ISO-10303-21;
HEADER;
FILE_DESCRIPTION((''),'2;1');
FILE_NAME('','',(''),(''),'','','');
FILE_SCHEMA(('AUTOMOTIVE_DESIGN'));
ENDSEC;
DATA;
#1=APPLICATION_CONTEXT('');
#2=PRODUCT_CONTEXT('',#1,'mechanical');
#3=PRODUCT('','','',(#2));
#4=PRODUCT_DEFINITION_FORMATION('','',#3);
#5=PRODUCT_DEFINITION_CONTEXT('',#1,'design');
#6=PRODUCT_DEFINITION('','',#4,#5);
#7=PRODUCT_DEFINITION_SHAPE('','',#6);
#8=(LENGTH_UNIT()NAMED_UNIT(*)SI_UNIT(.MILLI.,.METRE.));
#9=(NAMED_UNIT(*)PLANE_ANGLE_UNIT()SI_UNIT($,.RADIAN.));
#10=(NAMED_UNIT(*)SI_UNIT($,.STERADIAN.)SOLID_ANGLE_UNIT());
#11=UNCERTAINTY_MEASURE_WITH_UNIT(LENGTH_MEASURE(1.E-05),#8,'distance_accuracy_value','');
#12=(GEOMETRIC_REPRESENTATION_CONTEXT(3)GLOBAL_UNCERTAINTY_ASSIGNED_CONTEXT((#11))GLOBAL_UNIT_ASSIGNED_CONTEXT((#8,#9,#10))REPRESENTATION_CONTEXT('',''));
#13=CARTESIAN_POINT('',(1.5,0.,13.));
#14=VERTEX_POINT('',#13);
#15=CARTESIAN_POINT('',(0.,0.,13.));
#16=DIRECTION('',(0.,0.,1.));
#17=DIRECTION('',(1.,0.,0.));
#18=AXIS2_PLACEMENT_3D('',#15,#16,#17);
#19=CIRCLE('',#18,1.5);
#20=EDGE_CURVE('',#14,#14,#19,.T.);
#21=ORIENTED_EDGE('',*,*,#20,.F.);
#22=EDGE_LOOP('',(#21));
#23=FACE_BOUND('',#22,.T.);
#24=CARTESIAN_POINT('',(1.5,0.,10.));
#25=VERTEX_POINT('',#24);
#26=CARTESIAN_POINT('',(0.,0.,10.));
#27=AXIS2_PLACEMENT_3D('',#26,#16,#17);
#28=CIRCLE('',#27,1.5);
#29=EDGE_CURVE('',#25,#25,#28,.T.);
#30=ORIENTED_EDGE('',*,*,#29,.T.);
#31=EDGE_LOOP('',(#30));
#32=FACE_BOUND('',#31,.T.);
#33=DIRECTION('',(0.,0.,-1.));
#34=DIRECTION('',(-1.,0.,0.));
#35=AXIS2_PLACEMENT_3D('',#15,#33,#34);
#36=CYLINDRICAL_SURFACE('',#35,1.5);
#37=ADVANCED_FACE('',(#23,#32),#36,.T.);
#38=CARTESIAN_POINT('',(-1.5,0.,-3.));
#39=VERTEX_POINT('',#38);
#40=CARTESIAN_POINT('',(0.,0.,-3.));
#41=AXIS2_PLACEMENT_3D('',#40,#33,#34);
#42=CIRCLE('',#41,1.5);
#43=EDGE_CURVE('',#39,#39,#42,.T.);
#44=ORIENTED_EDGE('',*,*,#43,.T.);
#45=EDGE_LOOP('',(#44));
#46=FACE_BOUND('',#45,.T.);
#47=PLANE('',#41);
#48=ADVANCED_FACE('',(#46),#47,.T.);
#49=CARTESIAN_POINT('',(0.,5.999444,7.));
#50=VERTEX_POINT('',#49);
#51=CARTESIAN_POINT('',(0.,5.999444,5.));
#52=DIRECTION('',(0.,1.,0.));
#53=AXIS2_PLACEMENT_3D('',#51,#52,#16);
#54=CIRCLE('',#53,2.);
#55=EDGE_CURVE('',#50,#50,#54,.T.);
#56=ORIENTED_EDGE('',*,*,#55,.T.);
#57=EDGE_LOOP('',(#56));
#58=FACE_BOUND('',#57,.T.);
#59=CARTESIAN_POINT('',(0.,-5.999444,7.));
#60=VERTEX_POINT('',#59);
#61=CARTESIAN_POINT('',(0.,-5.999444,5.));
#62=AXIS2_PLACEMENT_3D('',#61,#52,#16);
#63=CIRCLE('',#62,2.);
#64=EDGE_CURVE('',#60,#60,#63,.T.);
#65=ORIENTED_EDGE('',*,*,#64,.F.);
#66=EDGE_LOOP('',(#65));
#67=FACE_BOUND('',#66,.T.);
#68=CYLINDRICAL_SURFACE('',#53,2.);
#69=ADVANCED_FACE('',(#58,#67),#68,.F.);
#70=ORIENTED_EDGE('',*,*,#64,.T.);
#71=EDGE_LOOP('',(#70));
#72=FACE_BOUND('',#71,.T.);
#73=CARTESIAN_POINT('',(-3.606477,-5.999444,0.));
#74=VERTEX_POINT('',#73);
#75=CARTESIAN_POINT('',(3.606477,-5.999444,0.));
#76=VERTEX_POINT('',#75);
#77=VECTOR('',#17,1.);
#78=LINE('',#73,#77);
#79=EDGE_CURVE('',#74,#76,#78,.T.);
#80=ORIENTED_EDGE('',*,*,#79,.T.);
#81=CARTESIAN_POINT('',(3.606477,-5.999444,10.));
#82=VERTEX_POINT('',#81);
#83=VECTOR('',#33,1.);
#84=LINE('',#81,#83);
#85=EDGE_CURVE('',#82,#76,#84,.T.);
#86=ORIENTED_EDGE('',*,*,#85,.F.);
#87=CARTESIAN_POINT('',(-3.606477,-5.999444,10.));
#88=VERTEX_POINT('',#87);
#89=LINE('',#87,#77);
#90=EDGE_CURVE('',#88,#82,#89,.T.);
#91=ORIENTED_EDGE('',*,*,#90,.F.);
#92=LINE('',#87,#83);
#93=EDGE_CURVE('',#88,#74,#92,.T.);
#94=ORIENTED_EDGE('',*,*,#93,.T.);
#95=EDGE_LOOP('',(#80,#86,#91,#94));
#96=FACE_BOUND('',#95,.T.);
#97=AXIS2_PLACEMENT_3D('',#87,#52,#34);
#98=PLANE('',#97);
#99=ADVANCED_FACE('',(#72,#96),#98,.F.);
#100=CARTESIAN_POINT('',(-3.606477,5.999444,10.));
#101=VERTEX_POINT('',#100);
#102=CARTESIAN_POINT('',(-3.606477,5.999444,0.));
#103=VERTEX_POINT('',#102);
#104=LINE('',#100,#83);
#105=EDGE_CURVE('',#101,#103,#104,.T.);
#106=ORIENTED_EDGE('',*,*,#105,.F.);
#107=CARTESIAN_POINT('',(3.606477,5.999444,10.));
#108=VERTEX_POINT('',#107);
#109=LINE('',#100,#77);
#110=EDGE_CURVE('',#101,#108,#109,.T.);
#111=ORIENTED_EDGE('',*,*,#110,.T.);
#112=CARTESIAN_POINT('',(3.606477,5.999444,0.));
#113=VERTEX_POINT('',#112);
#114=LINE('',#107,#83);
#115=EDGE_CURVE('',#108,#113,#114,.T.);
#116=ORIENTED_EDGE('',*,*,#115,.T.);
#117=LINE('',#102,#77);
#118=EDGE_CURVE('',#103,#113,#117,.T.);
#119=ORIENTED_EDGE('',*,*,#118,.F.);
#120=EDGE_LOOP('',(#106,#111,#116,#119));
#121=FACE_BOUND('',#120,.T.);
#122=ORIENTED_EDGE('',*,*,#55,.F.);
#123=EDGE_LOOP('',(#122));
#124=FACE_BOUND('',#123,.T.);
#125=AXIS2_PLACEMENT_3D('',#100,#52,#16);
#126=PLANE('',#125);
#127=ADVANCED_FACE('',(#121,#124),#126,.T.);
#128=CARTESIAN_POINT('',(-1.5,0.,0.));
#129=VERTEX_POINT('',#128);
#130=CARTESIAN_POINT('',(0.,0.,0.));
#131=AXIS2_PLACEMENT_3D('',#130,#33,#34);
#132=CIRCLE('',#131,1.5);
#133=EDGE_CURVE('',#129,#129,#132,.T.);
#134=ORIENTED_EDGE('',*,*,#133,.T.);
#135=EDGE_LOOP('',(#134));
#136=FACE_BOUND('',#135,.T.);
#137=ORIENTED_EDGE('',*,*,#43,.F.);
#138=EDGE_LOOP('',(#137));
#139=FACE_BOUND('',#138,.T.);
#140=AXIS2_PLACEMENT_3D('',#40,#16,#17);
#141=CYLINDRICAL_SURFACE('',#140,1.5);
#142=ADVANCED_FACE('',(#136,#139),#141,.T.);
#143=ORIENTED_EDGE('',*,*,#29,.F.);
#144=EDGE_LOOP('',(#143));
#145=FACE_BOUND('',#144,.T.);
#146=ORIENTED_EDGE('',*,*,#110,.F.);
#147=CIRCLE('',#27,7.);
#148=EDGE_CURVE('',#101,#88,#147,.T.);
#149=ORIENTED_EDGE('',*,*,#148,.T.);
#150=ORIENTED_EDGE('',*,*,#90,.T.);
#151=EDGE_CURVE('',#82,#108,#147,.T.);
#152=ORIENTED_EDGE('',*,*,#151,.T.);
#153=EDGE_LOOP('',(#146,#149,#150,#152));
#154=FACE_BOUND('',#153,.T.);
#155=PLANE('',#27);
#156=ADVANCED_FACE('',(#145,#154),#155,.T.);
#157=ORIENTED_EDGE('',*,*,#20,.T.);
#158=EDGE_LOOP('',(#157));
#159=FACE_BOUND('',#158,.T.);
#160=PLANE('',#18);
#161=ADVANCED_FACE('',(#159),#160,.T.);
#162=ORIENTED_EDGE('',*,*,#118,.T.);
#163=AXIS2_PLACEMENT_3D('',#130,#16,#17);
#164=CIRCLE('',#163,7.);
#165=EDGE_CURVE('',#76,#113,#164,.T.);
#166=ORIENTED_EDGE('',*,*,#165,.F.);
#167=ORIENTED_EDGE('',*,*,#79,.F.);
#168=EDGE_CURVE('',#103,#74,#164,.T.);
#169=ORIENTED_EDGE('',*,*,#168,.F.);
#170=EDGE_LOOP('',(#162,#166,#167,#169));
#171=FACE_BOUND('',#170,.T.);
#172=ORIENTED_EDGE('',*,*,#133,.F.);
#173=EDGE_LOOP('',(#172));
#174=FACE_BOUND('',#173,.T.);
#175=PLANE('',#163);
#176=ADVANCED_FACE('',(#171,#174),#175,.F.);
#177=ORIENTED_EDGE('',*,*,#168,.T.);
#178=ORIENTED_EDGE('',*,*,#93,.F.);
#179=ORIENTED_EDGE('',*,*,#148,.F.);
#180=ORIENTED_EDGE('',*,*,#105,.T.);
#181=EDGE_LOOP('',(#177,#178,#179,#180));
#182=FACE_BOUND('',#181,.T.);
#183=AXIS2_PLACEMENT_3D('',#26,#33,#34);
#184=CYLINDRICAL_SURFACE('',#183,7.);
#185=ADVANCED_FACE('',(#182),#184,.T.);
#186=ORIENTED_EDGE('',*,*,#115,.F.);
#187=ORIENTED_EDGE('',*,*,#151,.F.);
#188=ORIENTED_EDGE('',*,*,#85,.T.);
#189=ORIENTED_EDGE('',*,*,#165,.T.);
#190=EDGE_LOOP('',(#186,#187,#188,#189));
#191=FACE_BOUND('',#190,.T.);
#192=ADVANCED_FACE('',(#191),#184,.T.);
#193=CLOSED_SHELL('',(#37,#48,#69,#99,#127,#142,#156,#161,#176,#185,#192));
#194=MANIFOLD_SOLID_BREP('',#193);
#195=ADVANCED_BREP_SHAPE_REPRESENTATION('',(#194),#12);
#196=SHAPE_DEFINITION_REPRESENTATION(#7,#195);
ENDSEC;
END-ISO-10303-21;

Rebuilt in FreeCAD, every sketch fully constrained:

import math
import FreeCAD as App
import Part
import Sketcher
Q = App.Units.Quantity

doc = App.newDocument("Part")
params = doc.addObject("Spreadsheet::Sheet", "Params")
for row, (alias, value) in enumerate([
    ("sketch1_radius", "7 mm"),
    ("pad1_length", "10 mm"),
    ("sketch2_diameter", "3 mm"),
    ("pad2_length", "3 mm"),
    ("sketch3_diameter", "3 mm"),
    ("pad3_length", "3 mm"),
    ("sketch4_diameter", "4 mm"),
    ("hole_diameter", "4 mm"),
    ("hole_depth", "11.998887 mm"),
], start=1):
    params.set(f"A{row}", alias)
    params.set(f"B{row}", "=" + value)
    params.setAlias(f"B{row}", alias)

body = doc.addObject("PartDesign::Body", "Body")

# Sketch on XY plane
sketch1 = body.newObject("Sketcher::SketchObject", "Sketch")
sketch1.AttachmentSupport = (doc.getObject("XY_Plane"), [""])
sketch1.MapMode = "FlatFace"
sketch1.addGeometry(Part.LineSegment(App.Vector(4, 6, 0), App.Vector(-4, 6, 0)), False)
sketch1.addGeometry(Part.ArcOfCircle(Part.Circle(App.Vector(0, 0, 0), App.Vector(0, 0, 1), 7), math.radians(121), math.radians(239)), False)
sketch1.addGeometry(Part.LineSegment(App.Vector(-4, -6, 0), App.Vector(4, -6, 0)), False)
sketch1.addGeometry(Part.ArcOfCircle(Part.Circle(App.Vector(0, 0, 0), App.Vector(0, 0, 1), 7), math.radians(-59), math.radians(59)), False)
sketch1.addConstraint(Sketcher.Constraint("Coincident", 0, 2, 1, 1))
sketch1.addConstraint(Sketcher.Constraint("Coincident", 1, 2, 2, 1))
sketch1.addConstraint(Sketcher.Constraint("Coincident", 2, 2, 3, 1))
sketch1.addConstraint(Sketcher.Constraint("Coincident", 3, 2, 0, 1))
sketch1.addConstraint(Sketcher.Constraint("Horizontal", 0))
sketch1.addConstraint(Sketcher.Constraint("Horizontal", 2))
sketch1.addConstraint(Sketcher.Constraint("Coincident", 1, 3, -1, 1))
sketch1.addConstraint(Sketcher.Constraint("Coincident", 3, 3, -1, 1))
sketch1.addConstraint(Sketcher.Constraint("Equal", 1, 3))
sketch1.addConstraint(Sketcher.Constraint("Vertical", 0, 2, 1, 2))
sketch1.addConstraint(Sketcher.Constraint("Radius", 1, Q("7 mm")))
sketch1.addConstraint(Sketcher.Constraint("DistanceX", 0, 2, 0, 1, Q("7.212954 mm")))
sketch1.setExpression("Constraints[10]", "Params.sketch1_radius")
pad1 = body.newObject("PartDesign::Pad", "Pad")
pad1.Profile = sketch1
pad1.setExpression("Length", "Params.pad1_length")

# Sketch on XY plane
sketch2 = body.newObject("Sketcher::SketchObject", "Sketch001")
sketch2.AttachmentSupport = (doc.getObject("XY_Plane"), [""])
sketch2.MapMode = "FlatFace"
sketch2.AttachmentOffset = App.Placement(App.Vector(0, 0, 10), App.Rotation())
sketch2.addGeometry(Part.Circle(App.Vector(0, 0, 0), App.Vector(0, 0, 1), 1.5), False)
sketch2.addConstraint(Sketcher.Constraint("Coincident", 0, 3, -1, 1))
sketch2.addConstraint(Sketcher.Constraint("Diameter", 0, Q("3 mm")))
sketch2.setExpression("Constraints[1]", "Params.sketch2_diameter")
pad2 = body.newObject("PartDesign::Pad", "Pad001")
pad2.Profile = sketch2
pad2.setExpression("Length", "Params.pad2_length")

# Sketch on XY plane
sketch3 = body.newObject("Sketcher::SketchObject", "Sketch002")
sketch3.AttachmentSupport = (doc.getObject("XY_Plane"), [""])
sketch3.MapMode = "FlatFace"
sketch3.AttachmentOffset = App.Placement(App.Vector(0, 0, -3), App.Rotation())
sketch3.addGeometry(Part.Circle(App.Vector(0, 0, 0), App.Vector(0, 0, 1), 1.5), False)
sketch3.addConstraint(Sketcher.Constraint("Coincident", 0, 3, -1, 1))
sketch3.addConstraint(Sketcher.Constraint("Diameter", 0, Q("3 mm")))
sketch3.setExpression("Constraints[1]", "Params.sketch3_diameter")
pad3 = body.newObject("PartDesign::Pad", "Pad002")
pad3.Profile = sketch3
pad3.setExpression("Length", "Params.pad3_length")

# Sketch on XZ plane
sketch4 = body.newObject("Sketcher::SketchObject", "Sketch003")
sketch4.AttachmentSupport = (doc.getObject("XZ_Plane"), [""])
sketch4.MapMode = "FlatFace"
sketch4.AttachmentOffset = App.Placement(App.Vector(0, 0, -5.999444), App.Rotation())
sketch4.addGeometry(Part.Circle(App.Vector(0, 5, 0), App.Vector(0, 0, 1), 2), False)
sketch4.addConstraint(Sketcher.Constraint("PointOnObject", 0, 3, -2))
sketch4.addConstraint(Sketcher.Constraint("Diameter", 0, Q("4 mm")))
sketch4.addConstraint(Sketcher.Constraint("DistanceY", -1, 1, 0, 3, Q("5 mm")))
sketch4.setExpression("Constraints[1]", "Params.sketch4_diameter")
doc.recompute()
hole = body.newObject("PartDesign::Hole", "Hole")
hole.Profile = sketch4
hole.ThreadType = "None"
hole.setExpression("Diameter", "Params.hole_diameter")
hole.DepthType = "Dimension"
hole.setExpression("Depth", "Params.hole_depth")
hole.DrillPoint = "Angled"
hole.DrillPointAngle = 118
hole.Reversed = True

doc.recompute()
